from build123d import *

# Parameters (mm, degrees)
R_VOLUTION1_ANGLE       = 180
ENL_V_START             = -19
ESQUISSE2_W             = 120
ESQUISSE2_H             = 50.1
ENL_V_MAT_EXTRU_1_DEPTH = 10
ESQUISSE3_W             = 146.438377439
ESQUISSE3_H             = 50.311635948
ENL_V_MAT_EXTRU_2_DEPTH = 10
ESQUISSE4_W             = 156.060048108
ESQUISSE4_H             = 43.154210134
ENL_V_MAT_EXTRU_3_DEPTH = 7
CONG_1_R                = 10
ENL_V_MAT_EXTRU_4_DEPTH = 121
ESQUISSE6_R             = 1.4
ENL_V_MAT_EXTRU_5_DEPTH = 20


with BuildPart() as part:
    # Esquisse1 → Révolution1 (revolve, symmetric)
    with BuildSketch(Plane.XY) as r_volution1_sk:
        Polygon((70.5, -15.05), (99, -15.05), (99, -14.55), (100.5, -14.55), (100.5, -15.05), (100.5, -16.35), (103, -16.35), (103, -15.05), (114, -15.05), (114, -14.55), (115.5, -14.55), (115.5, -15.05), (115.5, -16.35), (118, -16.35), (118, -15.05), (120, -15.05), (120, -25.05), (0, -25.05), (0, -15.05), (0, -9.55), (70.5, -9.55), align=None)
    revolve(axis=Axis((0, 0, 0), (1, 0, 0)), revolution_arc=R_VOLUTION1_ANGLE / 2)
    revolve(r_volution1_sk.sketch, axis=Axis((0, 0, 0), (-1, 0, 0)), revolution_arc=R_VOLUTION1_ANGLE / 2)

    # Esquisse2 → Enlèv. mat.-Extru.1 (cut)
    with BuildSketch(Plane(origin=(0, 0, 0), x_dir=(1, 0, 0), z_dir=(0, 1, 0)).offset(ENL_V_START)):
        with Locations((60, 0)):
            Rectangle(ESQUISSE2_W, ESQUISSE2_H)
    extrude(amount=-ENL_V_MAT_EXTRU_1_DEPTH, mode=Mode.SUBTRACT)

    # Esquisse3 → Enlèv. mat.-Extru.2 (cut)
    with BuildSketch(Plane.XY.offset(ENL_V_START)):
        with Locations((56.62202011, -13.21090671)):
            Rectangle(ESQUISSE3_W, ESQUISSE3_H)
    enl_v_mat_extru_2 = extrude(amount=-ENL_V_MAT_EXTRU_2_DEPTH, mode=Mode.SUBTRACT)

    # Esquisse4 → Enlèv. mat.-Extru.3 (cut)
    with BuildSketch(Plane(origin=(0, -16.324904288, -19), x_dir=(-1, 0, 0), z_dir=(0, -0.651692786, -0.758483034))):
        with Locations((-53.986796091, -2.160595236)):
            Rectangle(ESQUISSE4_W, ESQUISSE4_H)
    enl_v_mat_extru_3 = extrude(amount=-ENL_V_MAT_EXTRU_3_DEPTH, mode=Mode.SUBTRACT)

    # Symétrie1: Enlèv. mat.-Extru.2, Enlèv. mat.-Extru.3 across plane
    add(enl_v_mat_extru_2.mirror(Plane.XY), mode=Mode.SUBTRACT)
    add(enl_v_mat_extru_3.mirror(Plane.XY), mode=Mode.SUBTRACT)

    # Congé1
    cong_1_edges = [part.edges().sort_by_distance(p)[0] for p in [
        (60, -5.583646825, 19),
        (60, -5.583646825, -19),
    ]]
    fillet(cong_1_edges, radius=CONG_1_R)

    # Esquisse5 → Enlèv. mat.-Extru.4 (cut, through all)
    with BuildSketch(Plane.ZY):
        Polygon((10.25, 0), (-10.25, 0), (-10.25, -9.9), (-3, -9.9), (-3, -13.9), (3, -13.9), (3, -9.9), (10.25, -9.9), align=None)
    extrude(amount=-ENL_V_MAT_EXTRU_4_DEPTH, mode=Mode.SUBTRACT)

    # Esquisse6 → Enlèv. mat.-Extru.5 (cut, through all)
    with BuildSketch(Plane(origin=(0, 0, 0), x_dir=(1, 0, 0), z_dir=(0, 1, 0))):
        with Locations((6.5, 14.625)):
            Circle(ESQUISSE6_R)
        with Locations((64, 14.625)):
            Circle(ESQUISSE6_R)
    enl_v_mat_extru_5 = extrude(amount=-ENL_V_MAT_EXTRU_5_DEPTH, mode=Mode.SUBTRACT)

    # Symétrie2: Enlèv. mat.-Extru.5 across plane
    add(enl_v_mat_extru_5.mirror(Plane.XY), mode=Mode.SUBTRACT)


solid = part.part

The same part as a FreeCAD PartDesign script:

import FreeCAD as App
import Part
import Sketcher
Q = App.Units.Quantity


def edges_at(feature, points):
    """Names of the edges that pass closest to the given points."""
    edges = feature.Shape.Edges
    near = lambda p: min(range(len(edges)), key=lambda i: edges[i].distToShape(Part.Vertex(*p))[0])
    return sorted({f"Edge{near(p) + 1}" for p in points})

doc = App.newDocument("Part")
params = doc.addObject("Spreadsheet::Sheet", "Params")
for row, (alias, value) in enumerate([
    ("sketch1_width", "120 mm"),
    ("sketch1_width2", "2 mm"),
    ("sketch1_width3", "11 mm"),
    ("sketch1_height", "10 mm"),
    ("sketch1_width4", "28.5 mm"),
    ("revolution_angle", "90 deg"),
    ("sketch2_width", "120 mm"),
    ("sketch2_width2", "2 mm"),
    ("sketch2_width3", "11 mm"),
    ("sketch2_height", "10 mm"),
    ("sketch2_width4", "28.5 mm"),
    ("revolution2_angle", "90 deg"),
    ("sketch3_width", "120 mm"),
    ("sketch3_height", "50.1 mm"),
    ("pocket1_length", "10 mm"),
    ("pocket2_length", "10 mm"),
    ("pocket3_length", "7 mm"),
    ("fillet_radius", "10 mm"),
    ("sketch6_width", "4 mm"),
    ("sketch6_height", "6 mm"),
    ("sketch6_width2", "9.9 mm"),
    ("sketch6_height2", "20.5 mm"),
    ("sketch7_diameter", "2.8 mm"),
], start=1):
    params.set(f"A{row}", alias)
    params.set(f"B{row}", "=" + value)
    params.setAlias(f"B{row}", alias)

body = doc.addObject("PartDesign::Body", "Body")

# Sketch on XY plane
sketch1 = body.newObject("Sketcher::SketchObject", "Sketch")
sketch1.AttachmentSupport = (doc.getObject("XY_Plane"), [""])
sketch1.MapMode = "FlatFace"
sketch1.addGeometry([
    Part.LineSegment(App.Vector(99, -15.1, 0), App.Vector(70.5, -15.1, 0)),  # 0
    Part.LineSegment(App.Vector(70.5, -15.1, 0), App.Vector(70.5, -9.6, 0)),  # 1
    Part.LineSegment(App.Vector(70.5, -9.6, 0), App.Vector(0, -9.6, 0)),  # 2
    Part.LineSegment(App.Vector(0, -9.6, 0), App.Vector(0, -25.1, 0)),  # 3
    Part.LineSegment(App.Vector(0, -25.1, 0), App.Vector(120, -25.1, 0)),  # 4
    Part.LineSegment(App.Vector(120, -25.1, 0), App.Vector(120, -15.1, 0)),  # 5
    Part.LineSegment(App.Vector(120, -15.1, 0), App.Vector(118, -15.1, 0)),  # 6
    Part.LineSegment(App.Vector(118, -15.1, 0), App.Vector(118, -16.4, 0)),  # 7
    Part.LineSegment(App.Vector(118, -16.4, 0), App.Vector(115.5, -16.4, 0)),  # 8
    Part.LineSegment(App.Vector(115.5, -16.4, 0), App.Vector(115.5, -14.6, 0)),  # 9
    Part.LineSegment(App.Vector(115.5, -14.6, 0), App.Vector(114, -14.6, 0)),  # 10
    Part.LineSegment(App.Vector(114, -14.6, 0), App.Vector(114, -15.1, 0)),  # 11
    Part.LineSegment(App.Vector(114, -15.1, 0), App.Vector(103, -15.1, 0)),  # 12
    Part.LineSegment(App.Vector(103, -15.1, 0), App.Vector(103, -16.4, 0)),  # 13
    Part.LineSegment(App.Vector(103, -16.4, 0), App.Vector(100.5, -16.4, 0)),  # 14
    Part.LineSegment(App.Vector(100.5, -16.4, 0), App.Vector(100.5, -14.6, 0)),  # 15
    Part.LineSegment(App.Vector(100.5, -14.6, 0), App.Vector(99, -14.6, 0)),  # 16
    Part.LineSegment(App.Vector(99, -14.6, 0), App.Vector(99, -15.1, 0)),  # 17
], False)
sketch1.addConstraint([
    Sketcher.Constraint("Coincident", 0, 2, 1, 1),
    Sketcher.Constraint("Coincident", 1, 2, 2, 1),
    Sketcher.Constraint("Coincident", 2, 2, 3, 1),
    Sketcher.Constraint("Coincident", 3, 2, 4, 1),
    Sketcher.Constraint("Coincident", 4, 2, 5, 1),
    Sketcher.Constraint("Coincident", 5, 2, 6, 1),
    Sketcher.Constraint("Coincident", 6, 2, 7, 1),
    Sketcher.Constraint("Coincident", 7, 2, 8, 1),
    Sketcher.Constraint("Coincident", 8, 2, 9, 1),
    Sketcher.Constraint("Coincident", 9, 2, 10, 1),
    Sketcher.Constraint("Coincident", 10, 2, 11, 1),
    Sketcher.Constraint("Coincident", 11, 2, 12, 1),
    Sketcher.Constraint("Coincident", 12, 2, 13, 1),
    Sketcher.Constraint("Coincident", 13, 2, 14, 1),
    Sketcher.Constraint("Coincident", 14, 2, 15, 1),
    Sketcher.Constraint("Coincident", 15, 2, 16, 1),
    Sketcher.Constraint("Coincident", 16, 2, 17, 1),
    Sketcher.Constraint("Coincident", 17, 2, 0, 1),
    Sketcher.Constraint("Horizontal", 0),
    Sketcher.Constraint("Vertical", 1),
    Sketcher.Constraint("Horizontal", 2),
    Sketcher.Constraint("Vertical", 3),
    Sketcher.Constraint("Horizontal", 4),
    Sketcher.Constraint("Vertical", 5),
    Sketcher.Constraint("Horizontal", 6),
    Sketcher.Constraint("Vertical", 7),
    Sketcher.Constraint("Horizontal", 8),
    Sketcher.Constraint("Vertical", 9),
    Sketcher.Constraint("Horizontal", 10),
    Sketcher.Constraint("Vertical", 11),
    Sketcher.Constraint("Horizontal", 12),
    Sketcher.Constraint("Vertical", 13),
    Sketcher.Constraint("Horizontal", 14),
    Sketcher.Constraint("Vertical", 15),
    Sketcher.Constraint("Horizontal", 16),
    Sketcher.Constraint("Vertical", 17),
    Sketcher.Constraint("PointOnObject", 2, 2, -2),
    Sketcher.Constraint("Horizontal", 0, 2, 5, 2),
    Sketcher.Constraint("Horizontal", 6, 2, 11, 2),
    Sketcher.Constraint("Horizontal", 8, 2, 13, 2),
    Sketcher.Constraint("Horizontal", 10, 2, 15, 2),
    Sketcher.Constraint("Equal", 8, 14),
    Sketcher.Constraint("Equal", 10, 16),
    Sketcher.Constraint("DistanceX", 4, 1, 4, 2, Q("120 mm")),
    Sketcher.Constraint("DistanceX", 6, 2, 6, 1, Q("2 mm")),
    Sketcher.Constraint("DistanceX", 12, 2, 12, 1, Q("11 mm")),
    Sketcher.Constraint("DistanceY", 5, 1, 5, 2, Q("10 mm")),
    Sketcher.Constraint("DistanceX", 0, 2, 0, 1, Q("28.5 mm")),
    Sketcher.Constraint("DistanceX", 2, 2, 2, 1, Q("70.5 mm")),
    Sketcher.Constraint("DistanceX", 8, 2, 8, 1, Q("2.5 mm")),
    Sketcher.Constraint("DistanceY", 1, 1, 1, 2, Q("5.5 mm")),
    Sketcher.Constraint("DistanceY", 7, 2, 7, 1, Q("1.3 mm")),
    Sketcher.Constraint("DistanceY", 9, 1, 9, 2, Q("1.8 mm")),
    Sketcher.Constraint("DistanceY", 0, 2, -1, 1, Q("15.05 mm")),
])
sketch1.setExpression("Constraints[43]", "Params.sketch1_width")
sketch1.setExpression("Constraints[44]", "Params.sketch1_width2")
sketch1.setExpression("Constraints[45]", "Params.sketch1_width3")
sketch1.setExpression("Constraints[46]", "Params.sketch1_height")
sketch1.setExpression("Constraints[47]", "Params.sketch1_width4")
revolution = body.newObject("PartDesign::Revolution", "Revolution")
revolution.Profile = sketch1
revolution.ReferenceAxis = (sketch1, ["H_Axis"])
revolution.setExpression("Angle", "Params.revolution_angle")

# Sketch on XY plane
sketch2 = body.newObject("Sketcher::SketchObject", "Sketch001")
sketch2.AttachmentSupport = (doc.getObject("XY_Plane"), [""])
sketch2.MapMode = "FlatFace"
sketch2.addGeometry([
    Part.LineSegment(App.Vector(99, -15.1, 0), App.Vector(70.5, -15.1, 0)),  # 0
    Part.LineSegment(App.Vector(70.5, -15.1, 0), App.Vector(70.5, -9.6, 0)),  # 1
    Part.LineSegment(App.Vector(70.5, -9.6, 0), App.Vector(0, -9.6, 0)),  # 2
    Part.LineSegment(App.Vector(0, -9.6, 0), App.Vector(0, -25.1, 0)),  # 3
    Part.LineSegment(App.Vector(0, -25.1, 0), App.Vector(120, -25.1, 0)),  # 4
    Part.LineSegment(App.Vector(120, -25.1, 0), App.Vector(120, -15.1, 0)),  # 5
    Part.LineSegment(App.Vector(120, -15.1, 0), App.Vector(118, -15.1, 0)),  # 6
    Part.LineSegment(App.Vector(118, -15.1, 0), App.Vector(118, -16.4, 0)),  # 7
    Part.LineSegment(App.Vector(118, -16.4, 0), App.Vector(115.5, -16.4, 0)),  # 8
    Part.LineSegment(App.Vector(115.5, -16.4, 0), App.Vector(115.5, -14.6, 0)),  # 9
    Part.LineSegment(App.Vector(115.5, -14.6, 0), App.Vector(114, -14.6, 0)),  # 10
    Part.LineSegment(App.Vector(114, -14.6, 0), App.Vector(114, -15.1, 0)),  # 11
    Part.LineSegment(App.Vector(114, -15.1, 0), App.Vector(103, -15.1, 0)),  # 12
    Part.LineSegment(App.Vector(103, -15.1, 0), App.Vector(103, -16.4, 0)),  # 13
    Part.LineSegment(App.Vector(103, -16.4, 0), App.Vector(100.5, -16.4, 0)),  # 14
    Part.LineSegment(App.Vector(100.5, -16.4, 0), App.Vector(100.5, -14.6, 0)),  # 15
    Part.LineSegment(App.Vector(100.5, -14.6, 0), App.Vector(99, -14.6, 0)),  # 16
    Part.LineSegment(App.Vector(99, -14.6, 0), App.Vector(99, -15.1, 0)),  # 17
], False)
sketch2.addConstraint([
    Sketcher.Constraint("Coincident", 0, 2, 1, 1),
    Sketcher.Constraint("Coincident", 1, 2, 2, 1),
    Sketcher.Constraint("Coincident", 2, 2, 3, 1),
    Sketcher.Constraint("Coincident", 3, 2, 4, 1),
    Sketcher.Constraint("Coincident", 4, 2, 5, 1),
    Sketcher.Constraint("Coincident", 5, 2, 6, 1),
    Sketcher.Constraint("Coincident", 6, 2, 7, 1),
    Sketcher.Constraint("Coincident", 7, 2, 8, 1),
    Sketcher.Constraint("Coincident", 8, 2, 9, 1),
    Sketcher.Constraint("Coincident", 9, 2, 10, 1),
    Sketcher.Constraint("Coincident", 10, 2, 11, 1),
    Sketcher.Constraint("Coincident", 11, 2, 12, 1),
    Sketcher.Constraint("Coincident", 12, 2, 13, 1),
    Sketcher.Constraint("Coincident", 13, 2, 14, 1),
    Sketcher.Constraint("Coincident", 14, 2, 15, 1),
    Sketcher.Constraint("Coincident", 15, 2, 16, 1),
    Sketcher.Constraint("Coincident", 16, 2, 17, 1),
    Sketcher.Constraint("Coincident", 17, 2, 0, 1),
    Sketcher.Constraint("Horizontal", 0),
    Sketcher.Constraint("Vertical", 1),
    Sketcher.Constraint("Horizontal", 2),
    Sketcher.Constraint("Vertical", 3),
    Sketcher.Constraint("Horizontal", 4),
    Sketcher.Constraint("Vertical", 5),
    Sketcher.Constraint("Horizontal", 6),
    Sketcher.Constraint("Vertical", 7),
    Sketcher.Constraint("Horizontal", 8),
    Sketcher.Constraint("Vertical", 9),
    Sketcher.Constraint("Horizontal", 10),
    Sketcher.Constraint("Vertical", 11),
    Sketcher.Constraint("Horizontal", 12),
    Sketcher.Constraint("Vertical", 13),
    Sketcher.Constraint("Horizontal", 14),
    Sketcher.Constraint("Vertical", 15),
    Sketcher.Constraint("Horizontal", 16),
    Sketcher.Constraint("Vertical", 17),
    Sketcher.Constraint("PointOnObject", 2, 2, -2),
    Sketcher.Constraint("Horizontal", 0, 2, 5, 2),
    Sketcher.Constraint("Horizontal", 6, 2, 11, 2),
    Sketcher.Constraint("Horizontal", 8, 2, 13, 2),
    Sketcher.Constraint("Horizontal", 10, 2, 15, 2),
    Sketcher.Constraint("Equal", 8, 14),
    Sketcher.Constraint("Equal", 10, 16),
    Sketcher.Constraint("DistanceX", 4, 1, 4, 2, Q("120 mm")),
    Sketcher.Constraint("DistanceX", 6, 2, 6, 1, Q("2 mm")),
    Sketcher.Constraint("DistanceX", 12, 2, 12, 1, Q("11 mm")),
    Sketcher.Constraint("DistanceY", 5, 1, 5, 2, Q("10 mm")),
    Sketcher.Constraint("DistanceX", 0, 2, 0, 1, Q("28.5 mm")),
    Sketcher.Constraint("DistanceX", 2, 2, 2, 1, Q("70.5 mm")),
    Sketcher.Constraint("DistanceX", 8, 2, 8, 1, Q("2.5 mm")),
    Sketcher.Constraint("DistanceY", 1, 1, 1, 2, Q("5.5 mm")),
    Sketcher.Constraint("DistanceY", 7, 2, 7, 1, Q("1.3 mm")),
    Sketcher.Constraint("DistanceY", 9, 1, 9, 2, Q("1.8 mm")),
    Sketcher.Constraint("DistanceY", 0, 2, -1, 1, Q("15.05 mm")),
])
sketch2.setExpression("Constraints[43]", "Params.sketch2_width")
sketch2.setExpression("Constraints[44]", "Params.sketch2_width2")
sketch2.setExpression("Constraints[45]", "Params.sketch2_width3")
sketch2.setExpression("Constraints[46]", "Params.sketch2_height")
sketch2.setExpression("Constraints[47]", "Params.sketch2_width4")
revolution2 = body.newObject("PartDesign::Revolution", "Revolution001")
revolution2.Profile = sketch2
revolution2.ReferenceAxis = (sketch2, ["H_Axis"])
revolution2.setExpression("Angle", "Params.revolution2_angle")
revolution2.Reversed = True

# Sketch on XZ plane
sketch3 = body.newObject("Sketcher::SketchObject", "Sketch002")
sketch3.AttachmentSupport = (doc.getObject("XZ_Plane"), [""])
sketch3.MapMode = "FlatFace"
sketch3.AttachmentOffset = App.Placement(App.Vector(0, 0, 19), App.Rotation())
sketch3.addGeometry([
    Part.LineSegment(App.Vector(0, -25, 0), App.Vector(0, 25, 0)),
    Part.LineSegment(App.Vector(0, 25, 0), App.Vector(120, 25, 0)),
    Part.LineSegment(App.Vector(120, 25, 0), App.Vector(120, -25, 0)),
    Part.LineSegment(App.Vector(120, -25, 0), App.Vector(0, -25, 0)),
], False)
sketch3.addConstraint([
    Sketcher.Constraint("Coincident", 0, 2, 1, 1),
    Sketcher.Constraint("Coincident", 1, 2, 2, 1),
    Sketcher.Constraint("Coincident", 2, 2, 3, 1),
    Sketcher.Constraint("Coincident", 3, 2, 0, 1),
    Sketcher.Constraint("Vertical", 0),
    Sketcher.Constraint("Horizontal", 1),
    Sketcher.Constraint("Vertical", 2),
    Sketcher.Constraint("Horizontal", 3),
    Sketcher.Constraint("Symmetric", 0, 2, 3, 2, -1, 1),
    Sketcher.Constraint("DistanceX", 1, 1, 1, 2, Q("120 mm")),
    Sketcher.Constraint("DistanceY", 0, 1, 0, 2, Q("50.1 mm")),
])
sketch3.setExpression("Constraints[9]", "Params.sketch3_width")
sketch3.setExpression("Constraints[10]", "Params.sketch3_height")
pocket1 = body.newObject("PartDesign::Pocket", "Pocket")
pocket1.Profile = sketch3
pocket1.setExpression("Length", "Params.pocket1_length")
pocket1.Reversed = True

# Sketch on XY plane
sketch4 = body.newObject("Sketcher::SketchObject", "Sketch003")
sketch4.AttachmentSupport = (doc.getObject("XY_Plane"), [""])
sketch4.MapMode = "FlatFace"
sketch4.AttachmentOffset = App.Placement(App.Vector(0, 0, -19), App.Rotation())
sketch4.addGeometry([
    Part.LineSegment(App.Vector(-17, 12, 0), App.Vector(-17, -38, 0)),
    Part.LineSegment(App.Vector(-17, -38, 0), App.Vector(130, -38, 0)),
    Part.LineSegment(App.Vector(130, -38, 0), App.Vector(130, 12, 0)),
    Part.LineSegment(App.Vector(130, 12, 0), App.Vector(-17, 12, 0)),
], False)
sketch4.addConstraint([
    Sketcher.Constraint("Coincident", 0, 2, 1, 1),
    Sketcher.Constraint("Coincident", 1, 2, 2, 1),
    Sketcher.Constraint("Coincident", 2, 2, 3, 1),
    Sketcher.Constraint("Coincident", 3, 2, 0, 1),
    Sketcher.Constraint("Vertical", 0),
    Sketcher.Constraint("Horizontal", 1),
    Sketcher.Constraint("Vertical", 2),
    Sketcher.Constraint("Horizontal", 3),
    Sketcher.Constraint("DistanceX", 1, 1, 1, 2, Q("146.438377 mm")),
    Sketcher.Constraint("DistanceY", 0, 2, 0, 1, Q("50.311636 mm")),
    Sketcher.Constraint("DistanceX", 0, 2, -1, 1, Q("16.597169 mm")),
    Sketcher.Constraint("DistanceY", -1, 1, 2, 2, Q("11.944911 mm")),
])
pocket2 = body.newObject("PartDesign::Pocket", "Pocket001")
pocket2.Profile = sketch4
pocket2.setExpression("Length", "Params.pocket2_length")

# Sketch on an angled plane
sketch5 = body.newObject("Sketcher::SketchObject", "Sketch004")
sketch5.Placement = App.Placement(App.Vector(0, -16.324904, -19), App.Rotation(App.Vector(-1, 0, 0), App.Vector(0, 0.758483034, -0.651692786), App.Vector(0, -0.651692786, -0.758483034), "ZXY"))
sketch5.addGeometry([
    Part.LineSegment(App.Vector(-132, 19, 0), App.Vector(-132, -24, 0)),
    Part.LineSegment(App.Vector(-132, -24, 0), App.Vector(24, -24, 0)),
    Part.LineSegment(App.Vector(24, -24, 0), App.Vector(24, 19, 0)),
    Part.LineSegment(App.Vector(24, 19, 0), App.Vector(-132, 19, 0)),
], False)
sketch5.addConstraint([
    Sketcher.Constraint("Coincident", 0, 2, 1, 1),
    Sketcher.Constraint("Coincident", 1, 2, 2, 1),
    Sketcher.Constraint("Coincident", 2, 2, 3, 1),
    Sketcher.Constraint("Coincident", 3, 2, 0, 1),
    Sketcher.Constraint("Vertical", 0),
    Sketcher.Constraint("Horizontal", 1),
    Sketcher.Constraint("Vertical", 2),
    Sketcher.Constraint("Horizontal", 3),
    Sketcher.Constraint("DistanceX", 1, 1, 1, 2, Q("156.060048 mm")),
    Sketcher.Constraint("DistanceY", 0, 2, 0, 1, Q("43.15421 mm")),
    Sketcher.Constraint("DistanceY", 0, 2, -1, 1, Q("23.7377 mm")),
    Sketcher.Constraint("DistanceX", 0, 2, -1, 1, Q("132.01682 mm")),
])
pocket3 = body.newObject("PartDesign::Pocket", "Pocket002")
pocket3.Profile = sketch5
pocket3.setExpression("Length", "Params.pocket3_length")
doc.recompute()

mirrored = body.newObject("PartDesign::Mirrored", "Mirrored")
mirrored.Originals = [pocket2, pocket3]
mirrored.MirrorPlane = (doc.getObject("XY_Plane"), [""])
body.Tip = mirrored
doc.recompute()

fillet = body.newObject("PartDesign::Fillet", "Fillet")
fillet.Base = (mirrored, edges_at(mirrored, [(60, -5.584, 19), (60, -5.584, -19)]))
fillet.setExpression("Radius", "Params.fillet_radius")

# Sketch on YZ plane
sketch6 = body.newObject("Sketcher::SketchObject", "Sketch005")
sketch6.AttachmentSupport = (doc.getObject("YZ_Plane"), [""])
sketch6.MapMode = "FlatFace"
sketch6.addGeometry([
    Part.LineSegment(App.Vector(0, 10.2, 0), App.Vector(0, -10.2, 0)),  # 0
    Part.LineSegment(App.Vector(0, -10.2, 0), App.Vector(-9.9, -10.2, 0)),  # 1
    Part.LineSegment(App.Vector(-9.9, -10.2, 0), App.Vector(-9.9, -3, 0)),  # 2
    Part.LineSegment(App.Vector(-9.9, -3, 0), App.Vector(-13.9, -3, 0)),  # 3
    Part.LineSegment(App.Vector(-13.9, -3, 0), App.Vector(-13.9, 3, 0)),  # 4
    Part.LineSegment(App.Vector(-13.9, 3, 0), App.Vector(-9.9, 3, 0)),  # 5
    Part.LineSegment(App.Vector(-9.9, 3, 0), App.Vector(-9.9, 10.2, 0)),  # 6
    Part.LineSegment(App.Vector(-9.9, 10.2, 0), App.Vector(0, 10.2, 0)),  # 7
], False)
sketch6.addConstraint([
    Sketcher.Constraint("Coincident", 0, 2, 1, 1),
    Sketcher.Constraint("Coincident", 1, 2, 2, 1),
    Sketcher.Constraint("Coincident", 2, 2, 3, 1),
    Sketcher.Constraint("Coincident", 3, 2, 4, 1),
    Sketcher.Constraint("Coincident", 4, 2, 5, 1),
    Sketcher.Constraint("Coincident", 5, 2, 6, 1),
    Sketcher.Constraint("Coincident", 6, 2, 7, 1),
    Sketcher.Constraint("Coincident", 7, 2, 0, 1),
    Sketcher.Constraint("Vertical", 0),
    Sketcher.Constraint("Horizontal", 1),
    Sketcher.Constraint("Vertical", 2),
    Sketcher.Constraint("Horizontal", 3),
    Sketcher.Constraint("Vertical", 4),
    Sketcher.Constraint("Horizontal", 5),
    Sketcher.Constraint("Vertical", 6),
    Sketcher.Constraint("Horizontal", 7),
    Sketcher.Constraint("Symmetric", 0, 2, 7, 2, -1, 1),
    Sketcher.Constraint("Symmetric", 2, 2, 5, 2, -1),
    Sketcher.Constraint("DistanceX", 3, 2, 3, 1, Q("4 mm")),
    Sketcher.Constraint("DistanceY", 4, 1, 4, 2, Q("6 mm")),
    Sketcher.Constraint("DistanceX", 1, 2, 1, 1, Q("9.9 mm")),
    Sketcher.Constraint("DistanceY", 0, 2, 0, 1, Q("20.5 mm")),
])
sketch6.setExpression("Constraints[18]", "Params.sketch6_width")
sketch6.setExpression("Constraints[19]", "Params.sketch6_height")
sketch6.setExpression("Constraints[20]", "Params.sketch6_width2")
sketch6.setExpression("Constraints[21]", "Params.sketch6_height2")
pocket4 = body.newObject("PartDesign::Pocket", "Pocket003")
pocket4.Profile = sketch6
pocket4.Type = "ThroughAll"
pocket4.Reversed = True

# Sketch on XZ plane
sketch7 = body.newObject("Sketcher::SketchObject", "Sketch006")
sketch7.AttachmentSupport = (doc.getObject("XZ_Plane"), [""])
sketch7.MapMode = "FlatFace"
sketch7.addGeometry([
    Part.Circle(App.Vector(6.5, -14.6, 0), App.Vector(0, 0, 1), 1.4),
    Part.Circle(App.Vector(64, -14.6, 0), App.Vector(0, 0, 1), 1.4),
], False)
sketch7.addConstraint([
    Sketcher.Constraint("Equal", 0, 1),
    Sketcher.Constraint("Horizontal", 0, 3, 1, 3),
    Sketcher.Constraint("Diameter", 0, Q("2.8 mm")),
    Sketcher.Constraint("DistanceX", -1, 1, 1, 3, Q("64 mm")),
    Sketcher.Constraint("DistanceX", -1, 1, 0, 3, Q("6.5 mm")),
    Sketcher.Constraint("DistanceY", 0, 3, -1, 1, Q("14.625 mm")),
])
sketch7.setExpression("Constraints[2]", "Params.sketch7_diameter")
pocket5 = body.newObject("PartDesign::Pocket", "Pocket004")
pocket5.Profile = sketch7
pocket5.Type = "ThroughAll"
pocket5.Reversed = True
doc.recompute()

mirrored2 = body.newObject("PartDesign::Mirrored", "Mirrored001")
mirrored2.Originals = [pocket5]
mirrored2.MirrorPlane = (doc.getObject("XY_Plane"), [""])
body.Tip = mirrored2

doc.recompute()
